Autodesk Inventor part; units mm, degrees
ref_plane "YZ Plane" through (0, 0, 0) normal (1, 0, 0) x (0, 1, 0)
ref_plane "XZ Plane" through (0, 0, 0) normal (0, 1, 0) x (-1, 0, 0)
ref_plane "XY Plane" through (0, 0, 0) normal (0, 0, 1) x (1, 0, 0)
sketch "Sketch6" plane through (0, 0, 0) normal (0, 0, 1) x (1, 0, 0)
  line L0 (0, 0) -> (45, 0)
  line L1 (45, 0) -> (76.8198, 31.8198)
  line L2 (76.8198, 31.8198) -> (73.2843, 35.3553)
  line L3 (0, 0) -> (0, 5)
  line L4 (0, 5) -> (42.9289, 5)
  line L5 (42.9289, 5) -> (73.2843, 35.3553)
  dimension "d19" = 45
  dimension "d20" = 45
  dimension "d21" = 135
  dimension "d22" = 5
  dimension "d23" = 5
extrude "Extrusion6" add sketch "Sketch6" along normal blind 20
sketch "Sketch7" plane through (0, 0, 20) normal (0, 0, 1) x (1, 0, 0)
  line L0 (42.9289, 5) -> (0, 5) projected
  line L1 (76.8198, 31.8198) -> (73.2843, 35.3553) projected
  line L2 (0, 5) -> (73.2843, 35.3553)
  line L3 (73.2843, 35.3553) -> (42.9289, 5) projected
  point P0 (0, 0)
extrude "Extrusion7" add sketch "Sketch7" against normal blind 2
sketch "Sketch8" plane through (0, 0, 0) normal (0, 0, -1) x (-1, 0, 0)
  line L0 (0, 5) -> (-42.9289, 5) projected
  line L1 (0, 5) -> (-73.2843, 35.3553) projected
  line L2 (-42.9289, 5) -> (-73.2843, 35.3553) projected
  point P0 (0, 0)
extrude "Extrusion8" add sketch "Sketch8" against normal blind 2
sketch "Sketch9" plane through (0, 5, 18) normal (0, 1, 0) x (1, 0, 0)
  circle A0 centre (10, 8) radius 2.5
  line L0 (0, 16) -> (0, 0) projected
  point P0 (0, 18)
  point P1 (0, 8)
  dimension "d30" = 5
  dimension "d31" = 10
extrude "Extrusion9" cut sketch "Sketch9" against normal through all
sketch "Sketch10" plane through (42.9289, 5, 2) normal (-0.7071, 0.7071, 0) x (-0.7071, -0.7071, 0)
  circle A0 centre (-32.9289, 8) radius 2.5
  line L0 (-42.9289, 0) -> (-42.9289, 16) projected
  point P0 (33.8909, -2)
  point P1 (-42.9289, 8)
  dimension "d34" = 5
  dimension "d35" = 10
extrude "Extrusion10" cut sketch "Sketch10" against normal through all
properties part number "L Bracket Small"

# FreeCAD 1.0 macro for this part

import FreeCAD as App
import Part
import Sketcher
Q = App.Units.Quantity


def add_polygon(sketch, points):
    """Adds a closed chain of lines whose ends are joined by coincident constraints."""
    first, n = sketch.GeometryCount, len(points)
    for a, b in zip(points, points[1:] + points[:1]):
        sketch.addGeometry(Part.LineSegment(App.Vector(*a, 0), App.Vector(*b, 0)), False)
    for i in range(n):
        sketch.addConstraint(Sketcher.Constraint("Coincident", first + i, 2, first + (i + 1) % n, 1))

doc = App.newDocument("Part")
body = doc.addObject("PartDesign::Body", "Body")

sketch1 = body.newObject("Sketcher::SketchObject", "Sketch")
sketch1.AttachmentSupport = (doc.getObject("XY_Plane"), [""])
sketch1.MapMode = "FlatFace"
add_polygon(sketch1, [(0, 5), (0, 0), (45, 0), (76.8, 31.8), (73.3, 35.4), (42.9, 5)])
sketch1.addConstraint(Sketcher.Constraint("Vertical", 0))
sketch1.addConstraint(Sketcher.Constraint("Horizontal", 1))
sketch1.addConstraint(Sketcher.Constraint("Horizontal", 5))
sketch1.addConstraint(Sketcher.Constraint("Coincident", 0, 2, -1, 1))
sketch1.addConstraint(Sketcher.Constraint("Perpendicular", 2, 3))
sketch1.addConstraint(Sketcher.Constraint("Perpendicular", 3, 4))
sketch1.addConstraint(Sketcher.Constraint("DistanceX", 1, 1, 1, 2, 45.0))
sketch1.addConstraint(Sketcher.Constraint("DistanceY", 0, 2, 0, 1, 5.0))
sketch1.addConstraint(Sketcher.Constraint("Angle", 2, Q("45 deg")))
sketch1.addConstraint(Sketcher.Constraint("Distance", 2, 45.0))
sketch1.addConstraint(Sketcher.Constraint("Distance", 3, 5.0))
pad1 = body.newObject("PartDesign::Pad", "Pad")
pad1.Profile = sketch1
pad1.Length = 20

sketch2 = body.newObject("Sketcher::SketchObject", "Sketch001")
sketch2.AttachmentSupport = (doc.getObject("XY_Plane"), [""])
sketch2.MapMode = "FlatFace"
sketch2.AttachmentOffset = App.Placement(App.Vector(0, 0, 20), App.Rotation())
add_polygon(sketch2, [(0, 5), (43, 5), (73, 35)])
sketch2.addConstraint(Sketcher.Constraint("Horizontal", 0))
sketch2.addConstraint(Sketcher.Constraint("PointOnObject", 2, 2, -2))
sketch2.addConstraint(Sketcher.Constraint("Angle", 1, Q("45 deg")))
sketch2.addConstraint(Sketcher.Constraint("DistanceY", -1, 1, 0, 2, 5.0))
sketch2.addConstraint(Sketcher.Constraint("Angle", 2, Q("-157.5 deg")))
sketch2.addConstraint(Sketcher.Constraint("DistanceX", 0, 1, 0, 2, 42.929))
pad2 = body.newObject("PartDesign::Pad", "Pad001")
pad2.Profile = sketch2
pad2.Length = 2
pad2.Reversed = True

sketch3 = body.newObject("Sketcher::SketchObject", "Sketch002")
sketch3.AttachmentSupport = (doc.getObject("XY_Plane"), [""])
sketch3.MapMode = "FlatFace"
add_polygon(sketch3, [(43, 5), (0, 5), (73, 35)])
sketch3.addConstraint(Sketcher.Constraint("Horizontal", 0))
sketch3.addConstraint(Sketcher.Constraint("PointOnObject", 0, 2, -2))
sketch3.addConstraint(Sketcher.Constraint("Angle", 2, Q("-135 deg")))
sketch3.addConstraint(Sketcher.Constraint("DistanceY", -1, 1, 0, 2, 5.0))
sketch3.addConstraint(Sketcher.Constraint("Angle", 1, Q("22.5 deg")))
sketch3.addConstraint(Sketcher.Constraint("DistanceX", 0, 2, 0, 1, 42.929))
pad3 = body.newObject("PartDesign::Pad", "Pad002")
pad3.Profile = sketch3
pad3.Length = 2

sketch4 = body.newObject("Sketcher::SketchObject", "Sketch003")
sketch4.AttachmentSupport = (doc.getObject("XZ_Plane"), [""])
sketch4.MapMode = "FlatFace"
sketch4.AttachmentOffset = App.Placement(App.Vector(0, 0, -5), App.Rotation())
sketch4.addGeometry(Part.Circle(App.Vector(10, 10, 0), App.Vector(0, 0, 1), 2.5), False)
sketch4.addConstraint(Sketcher.Constraint("Diameter", 0, 5.0))
sketch4.addConstraint(Sketcher.Constraint("DistanceX", -1, 1, 0, 3, 10.0))
sketch4.addConstraint(Sketcher.Constraint("DistanceY", -1, 1, 0, 3, 10.0))
pocket1 = body.newObject("PartDesign::Pocket", "Pocket")
pocket1.Profile = sketch4
pocket1.Type = "ThroughAll"
pocket1.Reversed = True

sketch5 = body.newObject("Sketcher::SketchObject", "Sketch004")
sketch5.Placement = App.Placement(App.Vector(42.9289, 5, 2), App.Rotation(App.Vector(-0.707106781, -0.707106781, 0), App.Vector(0, 0, 0.999999999), App.Vector(-0.707106781, 0.707106781, 0), "ZXY"))
sketch5.addGeometry(Part.Circle(App.Vector(-32.9, 8, 0), App.Vector(0, 0, 1), 2.5), False)
sketch5.addConstraint(Sketcher.Constraint("Diameter", 0, 5.0))
sketch5.addConstraint(Sketcher.Constraint("DistanceY", -1, 1, 0, 3, 8.0))
sketch5.addConstraint(Sketcher.Constraint("DistanceX", 0, 3, -1, 1, 32.929))
pocket2 = body.newObject("PartDesign::Pocket", "Pocket001")
pocket2.Profile = sketch5
pocket2.Type = "ThroughAll"

doc.recompute()
